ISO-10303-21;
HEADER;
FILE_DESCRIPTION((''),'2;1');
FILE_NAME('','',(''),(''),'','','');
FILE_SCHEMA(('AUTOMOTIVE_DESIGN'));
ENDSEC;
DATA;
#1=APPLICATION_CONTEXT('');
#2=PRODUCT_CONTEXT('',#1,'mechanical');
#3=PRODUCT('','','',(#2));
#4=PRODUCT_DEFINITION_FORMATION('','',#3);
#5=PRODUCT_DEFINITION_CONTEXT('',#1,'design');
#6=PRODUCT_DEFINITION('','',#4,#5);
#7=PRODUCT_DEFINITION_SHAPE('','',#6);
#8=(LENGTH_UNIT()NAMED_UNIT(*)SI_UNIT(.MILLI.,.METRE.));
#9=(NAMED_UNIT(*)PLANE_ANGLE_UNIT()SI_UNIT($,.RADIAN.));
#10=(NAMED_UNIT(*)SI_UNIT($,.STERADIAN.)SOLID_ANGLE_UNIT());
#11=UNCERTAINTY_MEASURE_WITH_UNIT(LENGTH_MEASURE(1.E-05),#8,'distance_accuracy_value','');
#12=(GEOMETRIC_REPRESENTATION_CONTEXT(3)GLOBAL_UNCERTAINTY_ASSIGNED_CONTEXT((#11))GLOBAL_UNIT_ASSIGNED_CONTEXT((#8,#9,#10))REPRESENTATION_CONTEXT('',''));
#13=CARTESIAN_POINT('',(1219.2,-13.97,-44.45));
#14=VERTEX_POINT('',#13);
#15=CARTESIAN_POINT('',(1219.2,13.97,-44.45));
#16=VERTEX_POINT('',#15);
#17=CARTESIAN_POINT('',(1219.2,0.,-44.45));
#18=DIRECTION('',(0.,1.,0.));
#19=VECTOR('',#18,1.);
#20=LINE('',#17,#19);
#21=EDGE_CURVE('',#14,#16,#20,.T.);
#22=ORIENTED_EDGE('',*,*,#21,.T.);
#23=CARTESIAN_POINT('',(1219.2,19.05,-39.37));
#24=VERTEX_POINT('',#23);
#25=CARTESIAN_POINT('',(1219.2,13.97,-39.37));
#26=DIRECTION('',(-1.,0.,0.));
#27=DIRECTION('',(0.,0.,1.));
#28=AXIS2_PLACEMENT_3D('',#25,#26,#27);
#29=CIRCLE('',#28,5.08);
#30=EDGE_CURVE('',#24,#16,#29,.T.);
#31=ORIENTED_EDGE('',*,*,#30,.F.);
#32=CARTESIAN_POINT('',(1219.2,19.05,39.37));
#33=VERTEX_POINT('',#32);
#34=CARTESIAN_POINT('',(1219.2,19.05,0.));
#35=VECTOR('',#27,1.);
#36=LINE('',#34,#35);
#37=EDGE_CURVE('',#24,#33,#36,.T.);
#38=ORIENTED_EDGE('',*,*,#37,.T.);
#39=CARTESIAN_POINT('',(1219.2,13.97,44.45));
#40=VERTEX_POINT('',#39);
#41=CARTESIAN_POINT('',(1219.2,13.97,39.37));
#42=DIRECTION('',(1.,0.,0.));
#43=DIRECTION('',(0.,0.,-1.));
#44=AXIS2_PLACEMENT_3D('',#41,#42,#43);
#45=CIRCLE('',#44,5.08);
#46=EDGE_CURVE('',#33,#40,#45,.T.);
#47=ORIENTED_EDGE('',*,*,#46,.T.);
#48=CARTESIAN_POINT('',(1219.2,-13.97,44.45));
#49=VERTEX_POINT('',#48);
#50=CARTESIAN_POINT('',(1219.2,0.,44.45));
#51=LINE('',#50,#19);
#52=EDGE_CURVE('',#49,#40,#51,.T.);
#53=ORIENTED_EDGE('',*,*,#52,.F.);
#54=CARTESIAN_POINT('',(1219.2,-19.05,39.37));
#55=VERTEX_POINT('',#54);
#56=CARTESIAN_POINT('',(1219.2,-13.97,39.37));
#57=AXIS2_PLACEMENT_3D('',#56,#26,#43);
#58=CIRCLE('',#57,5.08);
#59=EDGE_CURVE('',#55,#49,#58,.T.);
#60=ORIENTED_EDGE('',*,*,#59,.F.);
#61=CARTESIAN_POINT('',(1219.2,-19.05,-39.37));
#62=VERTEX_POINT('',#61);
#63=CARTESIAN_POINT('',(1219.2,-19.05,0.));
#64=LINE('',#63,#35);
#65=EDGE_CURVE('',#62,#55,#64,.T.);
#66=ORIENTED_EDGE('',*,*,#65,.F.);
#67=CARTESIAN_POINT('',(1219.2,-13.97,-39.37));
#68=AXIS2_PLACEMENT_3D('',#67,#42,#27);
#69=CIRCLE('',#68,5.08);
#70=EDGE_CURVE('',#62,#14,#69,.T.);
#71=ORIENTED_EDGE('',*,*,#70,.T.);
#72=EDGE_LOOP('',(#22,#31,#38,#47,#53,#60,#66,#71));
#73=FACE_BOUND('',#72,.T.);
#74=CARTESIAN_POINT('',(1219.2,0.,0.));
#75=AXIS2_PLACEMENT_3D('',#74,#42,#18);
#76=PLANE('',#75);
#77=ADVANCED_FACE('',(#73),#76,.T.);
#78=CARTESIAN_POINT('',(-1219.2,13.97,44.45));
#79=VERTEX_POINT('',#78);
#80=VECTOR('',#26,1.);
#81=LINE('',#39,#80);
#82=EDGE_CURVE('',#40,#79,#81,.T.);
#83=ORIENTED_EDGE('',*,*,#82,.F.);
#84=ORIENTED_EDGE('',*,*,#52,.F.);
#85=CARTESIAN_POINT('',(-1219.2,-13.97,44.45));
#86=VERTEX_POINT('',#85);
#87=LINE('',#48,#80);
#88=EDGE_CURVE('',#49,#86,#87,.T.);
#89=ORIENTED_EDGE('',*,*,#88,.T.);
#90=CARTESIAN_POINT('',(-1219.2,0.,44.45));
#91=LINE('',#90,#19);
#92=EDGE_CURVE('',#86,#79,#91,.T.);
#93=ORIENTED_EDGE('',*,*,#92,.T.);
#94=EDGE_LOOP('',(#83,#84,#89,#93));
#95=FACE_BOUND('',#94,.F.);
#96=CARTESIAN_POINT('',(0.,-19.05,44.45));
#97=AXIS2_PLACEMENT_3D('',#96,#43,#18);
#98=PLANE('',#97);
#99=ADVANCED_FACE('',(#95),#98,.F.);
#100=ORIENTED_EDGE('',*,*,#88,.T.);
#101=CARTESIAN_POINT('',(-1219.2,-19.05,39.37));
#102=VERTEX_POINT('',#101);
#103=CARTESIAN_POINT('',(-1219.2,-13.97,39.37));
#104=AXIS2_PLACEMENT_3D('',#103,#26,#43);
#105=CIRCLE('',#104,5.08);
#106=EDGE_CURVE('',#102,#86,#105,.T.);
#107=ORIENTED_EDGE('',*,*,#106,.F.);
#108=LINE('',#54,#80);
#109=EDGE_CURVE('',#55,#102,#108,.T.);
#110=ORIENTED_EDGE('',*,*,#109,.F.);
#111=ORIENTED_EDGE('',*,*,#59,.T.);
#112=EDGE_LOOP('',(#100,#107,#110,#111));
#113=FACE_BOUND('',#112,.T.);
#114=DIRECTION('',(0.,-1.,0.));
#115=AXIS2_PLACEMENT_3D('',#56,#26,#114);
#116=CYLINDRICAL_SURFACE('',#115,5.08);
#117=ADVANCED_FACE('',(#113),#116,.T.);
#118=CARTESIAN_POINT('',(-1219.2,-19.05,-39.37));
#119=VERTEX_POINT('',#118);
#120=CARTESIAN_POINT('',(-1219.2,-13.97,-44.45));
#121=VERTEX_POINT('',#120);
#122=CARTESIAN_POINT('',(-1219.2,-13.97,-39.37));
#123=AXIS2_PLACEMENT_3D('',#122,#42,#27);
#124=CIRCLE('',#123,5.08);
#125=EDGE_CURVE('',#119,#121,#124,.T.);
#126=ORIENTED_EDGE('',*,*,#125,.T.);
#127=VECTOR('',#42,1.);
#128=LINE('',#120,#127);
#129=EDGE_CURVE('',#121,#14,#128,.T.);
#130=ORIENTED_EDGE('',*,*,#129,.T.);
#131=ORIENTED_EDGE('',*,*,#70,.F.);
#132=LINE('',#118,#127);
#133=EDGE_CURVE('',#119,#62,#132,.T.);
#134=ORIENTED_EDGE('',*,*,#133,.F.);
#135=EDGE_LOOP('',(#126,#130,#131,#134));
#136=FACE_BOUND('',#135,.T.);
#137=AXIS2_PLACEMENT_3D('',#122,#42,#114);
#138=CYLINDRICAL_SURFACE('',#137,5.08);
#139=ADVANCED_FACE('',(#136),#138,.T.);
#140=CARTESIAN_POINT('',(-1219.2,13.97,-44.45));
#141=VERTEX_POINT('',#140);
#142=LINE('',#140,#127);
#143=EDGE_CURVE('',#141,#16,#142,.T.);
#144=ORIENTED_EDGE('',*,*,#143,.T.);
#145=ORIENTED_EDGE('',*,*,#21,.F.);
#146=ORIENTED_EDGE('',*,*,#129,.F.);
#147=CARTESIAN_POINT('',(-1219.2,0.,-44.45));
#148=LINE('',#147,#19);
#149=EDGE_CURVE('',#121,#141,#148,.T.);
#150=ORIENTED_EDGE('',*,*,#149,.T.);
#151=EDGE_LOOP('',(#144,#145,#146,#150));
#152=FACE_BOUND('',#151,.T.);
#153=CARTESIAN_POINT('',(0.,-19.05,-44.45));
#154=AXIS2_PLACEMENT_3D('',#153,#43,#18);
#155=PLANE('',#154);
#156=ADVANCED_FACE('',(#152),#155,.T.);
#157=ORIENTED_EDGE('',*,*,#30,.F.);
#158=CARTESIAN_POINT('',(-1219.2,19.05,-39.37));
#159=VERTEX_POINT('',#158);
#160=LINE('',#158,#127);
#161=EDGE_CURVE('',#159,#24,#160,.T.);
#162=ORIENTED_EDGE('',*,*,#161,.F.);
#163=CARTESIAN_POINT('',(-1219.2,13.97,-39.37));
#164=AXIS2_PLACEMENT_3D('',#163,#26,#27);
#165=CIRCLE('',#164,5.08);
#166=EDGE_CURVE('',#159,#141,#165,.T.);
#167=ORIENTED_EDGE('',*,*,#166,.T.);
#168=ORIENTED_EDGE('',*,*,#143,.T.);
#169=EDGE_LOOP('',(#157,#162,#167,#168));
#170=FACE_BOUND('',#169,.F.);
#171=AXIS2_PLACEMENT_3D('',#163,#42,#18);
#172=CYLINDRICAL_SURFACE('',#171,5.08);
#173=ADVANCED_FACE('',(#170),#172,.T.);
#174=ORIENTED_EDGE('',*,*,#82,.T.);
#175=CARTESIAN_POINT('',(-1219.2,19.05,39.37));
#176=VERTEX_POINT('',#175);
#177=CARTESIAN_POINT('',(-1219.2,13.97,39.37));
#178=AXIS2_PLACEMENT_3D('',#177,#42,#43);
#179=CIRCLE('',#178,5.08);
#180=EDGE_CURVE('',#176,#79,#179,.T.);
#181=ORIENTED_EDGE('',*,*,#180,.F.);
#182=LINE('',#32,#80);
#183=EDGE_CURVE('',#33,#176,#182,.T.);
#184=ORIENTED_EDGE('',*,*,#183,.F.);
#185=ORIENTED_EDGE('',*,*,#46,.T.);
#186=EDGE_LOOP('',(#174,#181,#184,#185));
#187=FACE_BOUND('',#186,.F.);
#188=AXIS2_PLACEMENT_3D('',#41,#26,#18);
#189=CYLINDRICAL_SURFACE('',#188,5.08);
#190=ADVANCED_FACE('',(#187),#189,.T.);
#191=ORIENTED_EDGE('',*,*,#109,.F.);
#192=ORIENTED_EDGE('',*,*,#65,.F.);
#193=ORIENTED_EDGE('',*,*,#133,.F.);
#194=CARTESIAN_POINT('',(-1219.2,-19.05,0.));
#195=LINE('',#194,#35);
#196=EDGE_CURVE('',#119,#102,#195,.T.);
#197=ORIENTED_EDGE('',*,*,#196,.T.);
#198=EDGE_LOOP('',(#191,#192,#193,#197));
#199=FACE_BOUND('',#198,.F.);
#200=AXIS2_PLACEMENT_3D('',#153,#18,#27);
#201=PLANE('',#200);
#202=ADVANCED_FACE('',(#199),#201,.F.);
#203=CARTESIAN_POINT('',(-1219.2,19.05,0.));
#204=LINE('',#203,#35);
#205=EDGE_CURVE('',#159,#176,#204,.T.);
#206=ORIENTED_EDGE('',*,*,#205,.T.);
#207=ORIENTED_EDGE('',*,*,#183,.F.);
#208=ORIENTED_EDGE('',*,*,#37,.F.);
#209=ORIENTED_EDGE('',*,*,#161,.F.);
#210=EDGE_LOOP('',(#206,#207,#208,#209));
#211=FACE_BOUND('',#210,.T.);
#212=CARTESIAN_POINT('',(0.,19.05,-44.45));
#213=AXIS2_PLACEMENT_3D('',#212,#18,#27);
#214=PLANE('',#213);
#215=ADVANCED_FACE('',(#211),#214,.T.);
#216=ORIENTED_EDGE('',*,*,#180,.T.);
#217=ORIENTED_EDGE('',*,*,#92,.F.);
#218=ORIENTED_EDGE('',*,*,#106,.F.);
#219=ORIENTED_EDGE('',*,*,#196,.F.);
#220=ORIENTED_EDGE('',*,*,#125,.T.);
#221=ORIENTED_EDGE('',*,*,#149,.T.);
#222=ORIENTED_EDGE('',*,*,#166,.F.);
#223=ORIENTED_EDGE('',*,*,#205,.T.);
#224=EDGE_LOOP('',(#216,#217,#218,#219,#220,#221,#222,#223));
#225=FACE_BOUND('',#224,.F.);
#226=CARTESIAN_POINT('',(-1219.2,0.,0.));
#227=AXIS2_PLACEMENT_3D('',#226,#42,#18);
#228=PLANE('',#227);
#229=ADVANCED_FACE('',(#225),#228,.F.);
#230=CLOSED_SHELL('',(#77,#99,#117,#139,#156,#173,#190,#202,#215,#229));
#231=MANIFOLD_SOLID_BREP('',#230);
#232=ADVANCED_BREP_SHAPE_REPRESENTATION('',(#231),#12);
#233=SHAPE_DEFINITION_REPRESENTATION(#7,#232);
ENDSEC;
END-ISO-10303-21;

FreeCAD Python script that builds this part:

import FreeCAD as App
import Part
import Sketcher
from FreeCAD import Vector
Q = App.Units.Quantity


def edges_at(feature, points):
    """Names of the edges that pass closest to the given points."""
    edges = feature.Shape.Edges
    near = lambda p: min(range(len(edges)), key=lambda i: edges[i].distToShape(Part.Vertex(*p))[0])
    return sorted({f"Edge{near(p) + 1}" for p in points})

doc = App.newDocument("Part")
body = doc.addObject("PartDesign::Body", "Body")

# Sketch on YZ plane
sketch1 = doc.addObject("Sketcher::SketchObject", "Sketch")
body.addObject(sketch1)
sketch1.AttachmentSupport = (doc.YZ_Plane, [""])
sketch1.MapMode = "FlatFace"
sketch1.addGeometry(Part.LineSegment(Vector(-19, 44, 0), Vector(-19, -44, 0)), False)
sketch1.addGeometry(Part.LineSegment(Vector(-19, -44, 0), Vector(19, -44, 0)), False)
sketch1.addGeometry(Part.LineSegment(Vector(19, -44, 0), Vector(19, 44, 0)), False)
sketch1.addGeometry(Part.LineSegment(Vector(19, 44, 0), Vector(-19, 44, 0)), False)
sketch1.addConstraint(Sketcher.Constraint("Coincident", 0, 2, 1, 1))
sketch1.addConstraint(Sketcher.Constraint("Coincident", 1, 2, 2, 1))
sketch1.addConstraint(Sketcher.Constraint("Coincident", 2, 2, 3, 1))
sketch1.addConstraint(Sketcher.Constraint("Coincident", 3, 2, 0, 1))
sketch1.addConstraint(Sketcher.Constraint("Vertical", 0))
sketch1.addConstraint(Sketcher.Constraint("Horizontal", 1))
sketch1.addConstraint(Sketcher.Constraint("Vertical", 2))
sketch1.addConstraint(Sketcher.Constraint("Horizontal", 3))
sketch1.addConstraint(Sketcher.Constraint("Symmetric", 0, 2, 2, 2, -1, 1))
sketch1.addConstraint(Sketcher.Constraint("DistanceX", 1, 1, 1, 2, Q("1.5 in")))
sketch1.addConstraint(Sketcher.Constraint("DistanceY", 0, 2, 0, 1, Q("3.5 in")))
pad1 = doc.addObject("PartDesign::Pad", "Pad")
body.addObject(pad1)
pad1.Profile = sketch1
pad1.Length = Q("96 in")
pad1.Midplane = True
doc.recompute()

fillet = doc.addObject("PartDesign::Fillet", "Fillet")
body.addObject(fillet)
fillet.Base = (pad1, edges_at(pad1, [
    (0, -19.05, 44.45),
    (0, 19.05, 44.45),
    (0, -19.05, -44.45),
    (0, 19.05, -44.45),
]))
fillet.Radius = Q("0.2 in")

doc.recompute()
